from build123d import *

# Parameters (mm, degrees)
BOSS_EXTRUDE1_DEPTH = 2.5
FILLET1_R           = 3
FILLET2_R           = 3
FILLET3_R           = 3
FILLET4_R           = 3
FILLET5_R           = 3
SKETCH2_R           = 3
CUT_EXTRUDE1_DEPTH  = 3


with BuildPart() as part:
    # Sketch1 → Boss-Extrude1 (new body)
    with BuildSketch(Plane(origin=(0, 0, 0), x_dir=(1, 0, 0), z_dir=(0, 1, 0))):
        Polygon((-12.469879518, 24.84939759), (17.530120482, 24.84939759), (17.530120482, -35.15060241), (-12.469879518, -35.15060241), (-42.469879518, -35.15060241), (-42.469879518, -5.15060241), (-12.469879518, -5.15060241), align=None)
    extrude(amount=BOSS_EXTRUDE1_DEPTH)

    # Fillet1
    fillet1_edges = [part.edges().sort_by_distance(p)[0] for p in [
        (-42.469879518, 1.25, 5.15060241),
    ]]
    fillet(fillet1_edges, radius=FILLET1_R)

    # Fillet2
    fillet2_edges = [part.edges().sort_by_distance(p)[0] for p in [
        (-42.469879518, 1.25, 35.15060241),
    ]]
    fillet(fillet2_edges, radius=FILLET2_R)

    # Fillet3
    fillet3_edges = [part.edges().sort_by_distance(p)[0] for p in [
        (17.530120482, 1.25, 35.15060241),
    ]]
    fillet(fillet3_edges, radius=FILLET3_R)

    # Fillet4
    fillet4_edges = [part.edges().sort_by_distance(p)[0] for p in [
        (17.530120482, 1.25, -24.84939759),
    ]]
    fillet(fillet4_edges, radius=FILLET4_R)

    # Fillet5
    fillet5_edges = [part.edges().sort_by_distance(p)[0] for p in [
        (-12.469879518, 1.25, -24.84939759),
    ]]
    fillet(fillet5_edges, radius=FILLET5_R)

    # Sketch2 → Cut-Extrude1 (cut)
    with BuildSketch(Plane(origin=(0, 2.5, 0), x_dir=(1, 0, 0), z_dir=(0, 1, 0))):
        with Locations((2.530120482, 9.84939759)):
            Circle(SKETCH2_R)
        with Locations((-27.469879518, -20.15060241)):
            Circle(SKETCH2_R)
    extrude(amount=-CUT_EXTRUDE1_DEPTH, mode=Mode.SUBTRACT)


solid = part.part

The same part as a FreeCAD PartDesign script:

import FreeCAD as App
import Part
import Sketcher
from FreeCAD import Vector


def edges_at(feature, points):
    """Names of the edges that pass closest to the given points."""
    edges = feature.Shape.Edges
    near = lambda p: min(range(len(edges)), key=lambda i: edges[i].distToShape(Part.Vertex(*p))[0])
    return sorted({f"Edge{near(p) + 1}" for p in points})


def add_polygon(sketch, points):
    """Adds a closed chain of lines whose ends are joined by coincident constraints."""
    first, n = sketch.GeometryCount, len(points)
    for a, b in zip(points, points[1:] + points[:1]):
        sketch.addGeometry(Part.LineSegment(App.Vector(*a, 0), App.Vector(*b, 0)), False)
    for i in range(n):
        sketch.addConstraint(Sketcher.Constraint("Coincident", first + i, 2, first + (i + 1) % n, 1))

doc = App.newDocument("Part")
params = doc.addObject("Spreadsheet::Sheet", "Params")
for row, (alias, value) in enumerate([
    ("sketch1_width", "30 mm"),
    ("pad1_length", "2.5 mm"),
    ("fillet_radius", "3 mm"),
    ("fillet2_radius", "3 mm"),
    ("fillet3_radius", "3 mm"),
    ("fillet4_radius", "3 mm"),
    ("fillet5_radius", "3 mm"),
    ("sketch2_diameter", "6 mm"),
    ("pocket1_length", "3 mm"),
], start=1):
    params.set(f"A{row}", alias)
    params.set(f"B{row}", "=" + value)
    params.setAlias(f"B{row}", alias)

body = doc.addObject("PartDesign::Body", "Body")

sketch1 = doc.addObject("Sketcher::SketchObject", "Sketch")
body.addObject(sketch1)
sketch1.AttachmentSupport = (doc.XZ_Plane, [""])
sketch1.MapMode = "FlatFace"
add_polygon(sketch1, [(18, -25), (-12, -25), (-12, 5), (-42, 5), (-42, 35), (18, 35)])
sketch1.addConstraint([
    Sketcher.Constraint("Horizontal", 0),
    Sketcher.Constraint("Vertical", 1),
    Sketcher.Constraint("Horizontal", 2),
    Sketcher.Constraint("Vertical", 3),
    Sketcher.Constraint("Horizontal", 4),
    Sketcher.Constraint("Vertical", 5),
    Sketcher.Constraint("Equal", 0, 2),
    Sketcher.Constraint("Equal", 2, 1),
    Sketcher.Constraint("Equal", 1, 3),
    Sketcher.Constraint("DistanceX", 0, 2, 0, 1, 30.0),
    Sketcher.Constraint("DistanceX", 0, 2, -1, 1, 12.46988),
    Sketcher.Constraint("DistanceY", 0, 2, -1, 1, 24.849398),
])
sketch1.setExpression("Constraints[15]", "Params.sketch1_width")
pad1 = doc.addObject("PartDesign::Pad", "Pad")
body.addObject(pad1)
pad1.Profile = sketch1
pad1.setExpression("Length", "Params.pad1_length")
pad1.Reversed = True
doc.recompute()

fillet = doc.addObject("PartDesign::Fillet", "Fillet")
body.addObject(fillet)
fillet.Base = (pad1, edges_at(pad1, [(-42.47, 1.25, 5.151)]))
fillet.setExpression("Radius", "Params.fillet_radius")
doc.recompute()

fillet2 = doc.addObject("PartDesign::Fillet", "Fillet001")
body.addObject(fillet2)
fillet2.Base = (fillet, edges_at(fillet, [(-42.47, 1.25, 35.151)]))
fillet2.setExpression("Radius", "Params.fillet2_radius")
doc.recompute()

fillet3 = doc.addObject("PartDesign::Fillet", "Fillet002")
body.addObject(fillet3)
fillet3.Base = (fillet2, edges_at(fillet2, [(17.53, 1.25, 35.151)]))
fillet3.setExpression("Radius", "Params.fillet3_radius")
doc.recompute()

fillet4 = doc.addObject("PartDesign::Fillet", "Fillet003")
body.addObject(fillet4)
fillet4.Base = (fillet3, edges_at(fillet3, [(17.53, 1.25, -24.849)]))
fillet4.setExpression("Radius", "Params.fillet4_radius")
doc.recompute()

fillet5 = doc.addObject("PartDesign::Fillet", "Fillet004")
body.addObject(fillet5)
fillet5.Base = (fillet4, edges_at(fillet4, [(-12.47, 1.25, -24.849)]))
fillet5.setExpression("Radius", "Params.fillet5_radius")

sketch2 = doc.addObject("Sketcher::SketchObject", "Sketch001")
body.addObject(sketch2)
sketch2.AttachmentSupport = (doc.XZ_Plane, [""])
sketch2.MapMode = "FlatFace"
sketch2.AttachmentOffset = App.Placement(Vector(0, 0, -2.5), App.Rotation())
sketch2.addGeometry([
    Part.Circle(Vector(2.5, -9.8, 0), Vector(0, 0, 1), 3),
    Part.Circle(Vector(-27.5, 20.2, 0), Vector(0, 0, 1), 3),
], False)
sketch2.addConstraint([
    Sketcher.Constraint("Equal", 0, 1),
    Sketcher.Constraint("Diameter", 0, 6.0),
    Sketcher.Constraint("DistanceX", 1, 3, 0, 3, 30.0),
    Sketcher.Constraint("DistanceY", 0, 3, 1, 3, 30.0),
    Sketcher.Constraint("DistanceX", -1, 1, 0, 3, 2.53012),
    Sketcher.Constraint("DistanceY", 0, 3, -1, 1, 9.849398),
])
sketch2.setExpression("Constraints[1]", "Params.sketch2_diameter")
pocket1 = doc.addObject("PartDesign::Pocket", "Pocket")
body.addObject(pocket1)
pocket1.Profile = sketch2
pocket1.setExpression("Length", "Params.pocket1_length")
pocket1.Reversed = True

doc.recompute()
